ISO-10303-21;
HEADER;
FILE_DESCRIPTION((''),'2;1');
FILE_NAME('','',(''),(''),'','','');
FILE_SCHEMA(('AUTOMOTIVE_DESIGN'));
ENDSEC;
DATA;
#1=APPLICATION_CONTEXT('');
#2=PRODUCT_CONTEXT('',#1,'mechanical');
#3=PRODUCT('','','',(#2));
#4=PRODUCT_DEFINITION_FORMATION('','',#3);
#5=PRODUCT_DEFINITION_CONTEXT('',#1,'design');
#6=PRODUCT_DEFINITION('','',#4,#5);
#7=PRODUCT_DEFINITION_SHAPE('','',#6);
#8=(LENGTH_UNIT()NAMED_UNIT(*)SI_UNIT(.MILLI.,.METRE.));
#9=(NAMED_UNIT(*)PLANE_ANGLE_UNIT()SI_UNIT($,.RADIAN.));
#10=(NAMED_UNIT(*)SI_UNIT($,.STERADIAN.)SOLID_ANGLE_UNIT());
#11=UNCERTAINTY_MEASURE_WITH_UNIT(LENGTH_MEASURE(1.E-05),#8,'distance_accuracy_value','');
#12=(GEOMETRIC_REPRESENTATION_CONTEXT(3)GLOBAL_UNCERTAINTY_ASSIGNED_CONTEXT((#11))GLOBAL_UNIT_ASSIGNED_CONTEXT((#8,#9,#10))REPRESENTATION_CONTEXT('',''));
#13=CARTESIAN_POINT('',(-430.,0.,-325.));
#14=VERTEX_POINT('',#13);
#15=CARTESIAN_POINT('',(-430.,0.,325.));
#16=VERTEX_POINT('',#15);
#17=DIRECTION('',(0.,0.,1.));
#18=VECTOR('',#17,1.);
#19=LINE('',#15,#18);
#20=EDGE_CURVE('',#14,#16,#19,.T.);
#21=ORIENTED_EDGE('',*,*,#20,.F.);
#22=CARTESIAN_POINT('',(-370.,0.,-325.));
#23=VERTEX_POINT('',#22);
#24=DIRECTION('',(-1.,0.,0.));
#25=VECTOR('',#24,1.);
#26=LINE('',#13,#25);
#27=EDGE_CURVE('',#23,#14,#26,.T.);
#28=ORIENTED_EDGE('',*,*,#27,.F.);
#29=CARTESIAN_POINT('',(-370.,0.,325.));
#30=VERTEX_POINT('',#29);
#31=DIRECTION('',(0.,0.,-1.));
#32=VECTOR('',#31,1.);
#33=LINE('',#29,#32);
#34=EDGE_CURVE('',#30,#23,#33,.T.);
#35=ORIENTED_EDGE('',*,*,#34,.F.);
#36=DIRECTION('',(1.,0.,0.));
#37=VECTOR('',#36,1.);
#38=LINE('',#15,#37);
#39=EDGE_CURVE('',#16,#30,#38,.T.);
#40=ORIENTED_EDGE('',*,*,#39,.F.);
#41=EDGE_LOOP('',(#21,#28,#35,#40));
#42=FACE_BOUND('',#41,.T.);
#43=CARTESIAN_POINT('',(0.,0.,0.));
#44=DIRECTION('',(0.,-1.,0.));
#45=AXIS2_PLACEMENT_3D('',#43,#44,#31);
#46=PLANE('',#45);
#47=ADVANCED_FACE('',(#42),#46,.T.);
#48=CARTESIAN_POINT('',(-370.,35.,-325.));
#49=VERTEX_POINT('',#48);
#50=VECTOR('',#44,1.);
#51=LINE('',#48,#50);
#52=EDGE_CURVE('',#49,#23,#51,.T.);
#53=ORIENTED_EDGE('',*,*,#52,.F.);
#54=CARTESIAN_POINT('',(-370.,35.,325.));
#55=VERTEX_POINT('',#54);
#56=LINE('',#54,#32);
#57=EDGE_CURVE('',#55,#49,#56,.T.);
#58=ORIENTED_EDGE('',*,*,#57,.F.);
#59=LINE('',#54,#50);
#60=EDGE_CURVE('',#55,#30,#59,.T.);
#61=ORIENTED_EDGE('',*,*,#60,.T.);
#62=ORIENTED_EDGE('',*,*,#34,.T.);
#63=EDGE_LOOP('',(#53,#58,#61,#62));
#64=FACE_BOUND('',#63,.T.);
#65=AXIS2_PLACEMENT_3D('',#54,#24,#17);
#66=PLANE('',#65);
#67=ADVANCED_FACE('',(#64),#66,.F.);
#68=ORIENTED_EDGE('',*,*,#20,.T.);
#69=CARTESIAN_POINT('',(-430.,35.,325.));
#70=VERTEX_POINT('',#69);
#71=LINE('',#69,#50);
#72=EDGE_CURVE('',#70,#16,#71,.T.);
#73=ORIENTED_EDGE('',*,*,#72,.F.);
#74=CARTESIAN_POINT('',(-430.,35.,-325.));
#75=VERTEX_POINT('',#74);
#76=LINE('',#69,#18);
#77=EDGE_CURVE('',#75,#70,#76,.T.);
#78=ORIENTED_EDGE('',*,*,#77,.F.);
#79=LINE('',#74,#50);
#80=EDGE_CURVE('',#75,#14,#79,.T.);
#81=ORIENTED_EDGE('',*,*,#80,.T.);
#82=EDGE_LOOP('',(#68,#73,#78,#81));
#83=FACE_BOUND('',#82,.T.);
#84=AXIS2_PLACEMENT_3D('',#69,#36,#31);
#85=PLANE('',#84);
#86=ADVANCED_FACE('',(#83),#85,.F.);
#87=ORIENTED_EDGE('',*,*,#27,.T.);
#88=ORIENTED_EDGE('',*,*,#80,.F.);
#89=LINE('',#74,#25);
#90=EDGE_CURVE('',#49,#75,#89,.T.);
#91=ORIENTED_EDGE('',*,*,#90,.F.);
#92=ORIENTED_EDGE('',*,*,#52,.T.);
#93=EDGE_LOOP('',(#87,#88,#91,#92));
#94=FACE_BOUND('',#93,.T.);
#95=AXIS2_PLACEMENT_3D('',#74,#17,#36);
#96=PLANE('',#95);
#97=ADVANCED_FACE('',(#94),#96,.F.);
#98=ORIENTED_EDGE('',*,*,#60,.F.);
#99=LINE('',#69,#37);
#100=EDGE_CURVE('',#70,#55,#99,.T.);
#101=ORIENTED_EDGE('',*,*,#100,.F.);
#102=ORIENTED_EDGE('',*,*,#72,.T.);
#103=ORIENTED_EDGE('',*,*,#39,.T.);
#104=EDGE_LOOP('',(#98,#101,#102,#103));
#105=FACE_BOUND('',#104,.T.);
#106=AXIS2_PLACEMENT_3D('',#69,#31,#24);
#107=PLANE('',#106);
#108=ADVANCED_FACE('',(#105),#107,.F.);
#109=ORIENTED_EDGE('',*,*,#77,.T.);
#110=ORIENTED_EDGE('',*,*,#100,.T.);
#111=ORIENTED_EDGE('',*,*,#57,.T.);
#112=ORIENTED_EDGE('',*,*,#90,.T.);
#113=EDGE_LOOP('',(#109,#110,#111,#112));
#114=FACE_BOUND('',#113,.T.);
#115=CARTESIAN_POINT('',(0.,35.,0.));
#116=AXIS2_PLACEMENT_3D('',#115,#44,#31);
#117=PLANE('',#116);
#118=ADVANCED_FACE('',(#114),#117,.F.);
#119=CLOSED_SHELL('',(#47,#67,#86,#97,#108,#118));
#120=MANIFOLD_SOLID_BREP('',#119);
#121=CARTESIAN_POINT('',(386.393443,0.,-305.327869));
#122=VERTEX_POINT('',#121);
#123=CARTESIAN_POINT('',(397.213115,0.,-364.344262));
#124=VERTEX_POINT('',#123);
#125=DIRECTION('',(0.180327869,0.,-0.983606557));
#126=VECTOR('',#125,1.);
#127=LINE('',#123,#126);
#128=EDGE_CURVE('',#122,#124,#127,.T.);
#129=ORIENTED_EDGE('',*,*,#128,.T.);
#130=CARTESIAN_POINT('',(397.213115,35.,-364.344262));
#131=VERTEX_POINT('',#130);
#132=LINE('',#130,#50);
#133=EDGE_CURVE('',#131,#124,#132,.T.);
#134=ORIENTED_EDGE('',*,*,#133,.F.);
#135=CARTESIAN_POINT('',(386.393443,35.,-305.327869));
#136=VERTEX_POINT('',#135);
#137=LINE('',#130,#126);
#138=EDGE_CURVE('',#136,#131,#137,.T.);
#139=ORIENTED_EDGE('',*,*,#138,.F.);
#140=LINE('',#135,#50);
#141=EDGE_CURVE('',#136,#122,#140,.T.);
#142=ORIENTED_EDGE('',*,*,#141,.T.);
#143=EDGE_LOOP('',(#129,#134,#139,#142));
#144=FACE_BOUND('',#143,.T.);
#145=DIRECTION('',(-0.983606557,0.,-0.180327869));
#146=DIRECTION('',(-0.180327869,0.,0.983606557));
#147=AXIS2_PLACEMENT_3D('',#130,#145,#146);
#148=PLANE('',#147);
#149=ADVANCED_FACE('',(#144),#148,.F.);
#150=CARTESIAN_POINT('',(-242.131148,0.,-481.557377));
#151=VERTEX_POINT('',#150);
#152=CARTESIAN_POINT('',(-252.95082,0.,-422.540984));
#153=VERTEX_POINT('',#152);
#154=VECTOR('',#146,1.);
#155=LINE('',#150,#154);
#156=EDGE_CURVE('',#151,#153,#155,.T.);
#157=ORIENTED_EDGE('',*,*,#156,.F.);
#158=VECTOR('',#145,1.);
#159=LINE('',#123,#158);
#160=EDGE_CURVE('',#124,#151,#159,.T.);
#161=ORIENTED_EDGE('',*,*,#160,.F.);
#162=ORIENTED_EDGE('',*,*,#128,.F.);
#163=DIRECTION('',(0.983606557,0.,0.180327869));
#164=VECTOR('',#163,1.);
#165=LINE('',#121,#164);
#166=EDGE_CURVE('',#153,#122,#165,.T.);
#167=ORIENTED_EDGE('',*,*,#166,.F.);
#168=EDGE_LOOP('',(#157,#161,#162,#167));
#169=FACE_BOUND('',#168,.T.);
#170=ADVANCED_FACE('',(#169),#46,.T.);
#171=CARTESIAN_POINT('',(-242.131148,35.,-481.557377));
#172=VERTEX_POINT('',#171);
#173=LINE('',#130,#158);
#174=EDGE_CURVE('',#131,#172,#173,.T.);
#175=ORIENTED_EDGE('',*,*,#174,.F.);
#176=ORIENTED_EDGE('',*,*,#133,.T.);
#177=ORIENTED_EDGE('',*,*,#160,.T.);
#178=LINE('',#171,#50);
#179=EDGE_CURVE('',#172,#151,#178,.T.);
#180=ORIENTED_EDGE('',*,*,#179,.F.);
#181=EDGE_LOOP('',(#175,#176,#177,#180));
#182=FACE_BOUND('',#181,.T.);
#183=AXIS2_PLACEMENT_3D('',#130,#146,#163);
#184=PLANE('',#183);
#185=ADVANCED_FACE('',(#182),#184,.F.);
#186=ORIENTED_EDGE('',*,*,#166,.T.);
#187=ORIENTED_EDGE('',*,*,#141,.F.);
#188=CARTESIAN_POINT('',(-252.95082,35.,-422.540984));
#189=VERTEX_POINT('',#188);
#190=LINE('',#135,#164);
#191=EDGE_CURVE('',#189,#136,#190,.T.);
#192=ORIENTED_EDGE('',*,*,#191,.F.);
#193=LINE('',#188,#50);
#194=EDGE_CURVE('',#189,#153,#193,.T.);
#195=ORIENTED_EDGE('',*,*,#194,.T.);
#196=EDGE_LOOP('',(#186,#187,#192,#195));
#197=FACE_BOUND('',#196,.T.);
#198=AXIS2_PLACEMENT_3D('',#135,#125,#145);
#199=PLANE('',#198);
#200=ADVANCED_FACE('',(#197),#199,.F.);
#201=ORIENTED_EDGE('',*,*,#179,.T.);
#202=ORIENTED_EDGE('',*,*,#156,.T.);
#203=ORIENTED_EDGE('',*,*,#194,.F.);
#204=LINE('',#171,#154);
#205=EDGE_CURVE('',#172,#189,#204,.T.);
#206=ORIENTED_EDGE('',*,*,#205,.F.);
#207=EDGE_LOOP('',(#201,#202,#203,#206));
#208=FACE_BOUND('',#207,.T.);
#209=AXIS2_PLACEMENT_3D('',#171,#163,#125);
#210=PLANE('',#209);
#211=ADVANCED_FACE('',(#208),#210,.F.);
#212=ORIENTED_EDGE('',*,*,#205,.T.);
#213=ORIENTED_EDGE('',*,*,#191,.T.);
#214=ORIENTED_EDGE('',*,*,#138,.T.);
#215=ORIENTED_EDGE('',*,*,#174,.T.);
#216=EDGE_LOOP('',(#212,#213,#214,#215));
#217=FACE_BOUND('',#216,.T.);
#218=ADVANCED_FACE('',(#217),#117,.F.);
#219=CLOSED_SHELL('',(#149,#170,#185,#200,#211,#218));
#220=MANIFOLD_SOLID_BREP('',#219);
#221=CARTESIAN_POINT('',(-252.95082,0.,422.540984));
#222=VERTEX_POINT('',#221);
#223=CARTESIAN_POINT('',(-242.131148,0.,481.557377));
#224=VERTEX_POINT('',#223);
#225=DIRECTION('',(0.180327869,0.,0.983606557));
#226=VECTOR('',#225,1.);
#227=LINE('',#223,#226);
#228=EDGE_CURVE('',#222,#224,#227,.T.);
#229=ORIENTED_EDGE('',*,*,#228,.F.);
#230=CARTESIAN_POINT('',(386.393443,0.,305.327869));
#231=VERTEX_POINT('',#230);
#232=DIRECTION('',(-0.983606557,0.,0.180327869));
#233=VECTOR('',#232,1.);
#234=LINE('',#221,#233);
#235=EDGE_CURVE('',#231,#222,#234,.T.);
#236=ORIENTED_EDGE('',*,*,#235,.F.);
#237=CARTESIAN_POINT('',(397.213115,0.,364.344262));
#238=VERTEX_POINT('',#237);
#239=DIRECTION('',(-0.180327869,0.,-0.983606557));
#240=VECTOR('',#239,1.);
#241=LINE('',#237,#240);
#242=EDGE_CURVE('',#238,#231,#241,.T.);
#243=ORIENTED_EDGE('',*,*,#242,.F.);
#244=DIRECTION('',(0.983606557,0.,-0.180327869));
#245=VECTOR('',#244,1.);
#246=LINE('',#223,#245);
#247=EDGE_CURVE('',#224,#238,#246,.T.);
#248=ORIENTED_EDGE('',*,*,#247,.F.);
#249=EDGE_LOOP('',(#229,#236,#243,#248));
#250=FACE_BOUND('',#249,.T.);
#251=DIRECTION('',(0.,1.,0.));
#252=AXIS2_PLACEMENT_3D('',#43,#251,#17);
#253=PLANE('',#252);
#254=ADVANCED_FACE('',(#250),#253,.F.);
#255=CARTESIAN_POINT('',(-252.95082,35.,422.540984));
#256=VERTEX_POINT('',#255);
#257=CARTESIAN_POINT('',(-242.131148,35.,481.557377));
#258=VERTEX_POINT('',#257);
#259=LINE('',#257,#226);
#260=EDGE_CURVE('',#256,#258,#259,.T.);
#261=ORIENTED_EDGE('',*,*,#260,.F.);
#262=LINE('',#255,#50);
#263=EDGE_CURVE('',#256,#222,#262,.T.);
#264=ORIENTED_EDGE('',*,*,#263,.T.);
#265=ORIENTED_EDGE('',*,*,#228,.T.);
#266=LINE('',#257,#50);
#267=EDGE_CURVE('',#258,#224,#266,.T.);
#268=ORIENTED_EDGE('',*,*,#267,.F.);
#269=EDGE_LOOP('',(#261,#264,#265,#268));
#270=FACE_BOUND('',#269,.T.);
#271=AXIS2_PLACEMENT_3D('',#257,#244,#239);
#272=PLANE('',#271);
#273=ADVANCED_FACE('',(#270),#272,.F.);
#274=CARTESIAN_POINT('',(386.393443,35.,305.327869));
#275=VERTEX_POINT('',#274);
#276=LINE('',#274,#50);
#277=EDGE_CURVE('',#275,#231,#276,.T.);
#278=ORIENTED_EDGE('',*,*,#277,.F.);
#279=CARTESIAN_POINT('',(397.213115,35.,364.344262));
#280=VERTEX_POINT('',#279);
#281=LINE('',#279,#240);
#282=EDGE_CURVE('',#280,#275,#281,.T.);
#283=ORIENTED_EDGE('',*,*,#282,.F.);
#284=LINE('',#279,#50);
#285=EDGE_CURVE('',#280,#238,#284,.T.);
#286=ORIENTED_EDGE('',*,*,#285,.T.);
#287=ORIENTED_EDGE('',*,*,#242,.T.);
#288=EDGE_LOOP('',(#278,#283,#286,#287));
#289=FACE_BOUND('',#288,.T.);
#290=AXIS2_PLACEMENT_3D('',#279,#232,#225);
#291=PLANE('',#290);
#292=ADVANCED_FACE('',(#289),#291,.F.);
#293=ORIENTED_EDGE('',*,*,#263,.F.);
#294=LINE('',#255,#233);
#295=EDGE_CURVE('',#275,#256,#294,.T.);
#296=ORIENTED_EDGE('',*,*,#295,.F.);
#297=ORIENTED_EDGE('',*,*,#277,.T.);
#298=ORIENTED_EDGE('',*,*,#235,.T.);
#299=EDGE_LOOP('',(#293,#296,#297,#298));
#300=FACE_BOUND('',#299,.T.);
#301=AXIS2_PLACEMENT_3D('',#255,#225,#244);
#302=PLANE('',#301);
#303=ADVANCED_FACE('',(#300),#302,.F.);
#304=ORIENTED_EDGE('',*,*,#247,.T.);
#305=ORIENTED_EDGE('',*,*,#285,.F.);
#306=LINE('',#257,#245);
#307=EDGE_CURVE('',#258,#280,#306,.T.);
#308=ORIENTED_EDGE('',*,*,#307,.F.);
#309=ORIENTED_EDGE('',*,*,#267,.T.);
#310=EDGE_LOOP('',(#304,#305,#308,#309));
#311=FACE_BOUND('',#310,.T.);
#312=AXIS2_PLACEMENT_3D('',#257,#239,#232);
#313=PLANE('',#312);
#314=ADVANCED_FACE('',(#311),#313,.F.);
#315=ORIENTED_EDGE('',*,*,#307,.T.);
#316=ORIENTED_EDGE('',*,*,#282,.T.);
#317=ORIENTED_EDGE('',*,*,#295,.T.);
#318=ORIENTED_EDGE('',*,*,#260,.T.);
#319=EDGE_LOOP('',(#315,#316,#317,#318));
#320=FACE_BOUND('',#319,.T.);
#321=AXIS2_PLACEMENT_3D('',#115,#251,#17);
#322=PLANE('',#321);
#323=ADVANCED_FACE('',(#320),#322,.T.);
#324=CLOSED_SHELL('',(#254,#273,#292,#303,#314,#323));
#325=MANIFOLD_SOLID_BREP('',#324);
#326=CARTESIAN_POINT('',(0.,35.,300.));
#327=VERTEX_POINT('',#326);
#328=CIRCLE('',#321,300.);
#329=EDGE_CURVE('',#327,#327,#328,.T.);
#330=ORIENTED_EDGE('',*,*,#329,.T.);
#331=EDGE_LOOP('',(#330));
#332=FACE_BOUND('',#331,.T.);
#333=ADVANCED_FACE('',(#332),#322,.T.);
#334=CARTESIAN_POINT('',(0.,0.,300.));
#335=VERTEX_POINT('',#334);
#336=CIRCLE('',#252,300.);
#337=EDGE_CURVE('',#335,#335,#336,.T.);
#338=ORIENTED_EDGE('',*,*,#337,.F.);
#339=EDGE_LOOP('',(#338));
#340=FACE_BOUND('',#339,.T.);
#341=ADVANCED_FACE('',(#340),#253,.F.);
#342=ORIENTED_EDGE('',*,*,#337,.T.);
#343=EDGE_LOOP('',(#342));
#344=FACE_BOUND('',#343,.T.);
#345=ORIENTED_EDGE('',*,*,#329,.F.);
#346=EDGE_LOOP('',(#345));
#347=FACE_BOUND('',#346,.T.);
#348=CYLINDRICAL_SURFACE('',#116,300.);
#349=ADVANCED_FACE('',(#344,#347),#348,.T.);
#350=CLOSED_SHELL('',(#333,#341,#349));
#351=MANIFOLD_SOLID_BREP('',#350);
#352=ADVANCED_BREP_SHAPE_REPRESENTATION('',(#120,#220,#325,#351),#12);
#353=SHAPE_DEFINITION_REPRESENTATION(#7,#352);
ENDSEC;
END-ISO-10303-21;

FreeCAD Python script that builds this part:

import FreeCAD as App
import Part
import Sketcher

V = App.Vector
Q = App.Units.Quantity

doc = App.newDocument("Part")
params = doc.addObject("Spreadsheet::Sheet", "Params")
for row, (alias, value) in enumerate([
    ("sketch1_diameter", "600 mm"),
    ("pad1_length", "35 mm"),
    ("sketch2_length", "650 mm"),
    ("sketch2_length2", "60 mm"),
    ("pad2_length", "35 mm"),
    ("sketch3_width", "60 mm"),
    ("sketch3_height", "650 mm"),
    ("pad3_length", "35 mm"),
    ("sketch4_length", "60 mm"),
    ("sketch4_length2", "650 mm"),
    ("pad4_length", "35 mm"),
], start=1):
    params.set(f"A{row}", alias)
    params.set(f"B{row}", "=" + value)
    params.setAlias(f"B{row}", alias)

body = doc.addObject("PartDesign::Body", "Body")

# Sketch on XZ plane
sketch1 = body.newObject("Sketcher::SketchObject", "Sketch")
sketch1.AttachmentSupport = (doc.getObject("XZ_Plane"), [""])
sketch1.MapMode = "FlatFace"
sketch1.addGeometry(Part.Circle(V(0, 0, 0), V(0, 0, 1), 300), False)
sketch1.addConstraint(Sketcher.Constraint("Coincident", 0, 3, -1, 1))
sketch1.addConstraint(Sketcher.Constraint("Diameter", 0, Q("600 mm")))
sketch1.setExpression("Constraints[1]", "Params.sketch1_diameter")
pad1 = body.newObject("PartDesign::Pad", "Pad")
pad1.Profile = sketch1
pad1.setExpression("Length", "Params.pad1_length")
pad1.Reversed = True
body2 = doc.addObject("PartDesign::Body", "Body001")

# Sketch on XZ plane
sketch2 = body2.newObject("Sketcher::SketchObject", "Sketch001")
sketch2.AttachmentSupport = (doc.getObject("XZ_Plane001"), [""])
sketch2.MapMode = "FlatFace"
sketch2.addGeometry(Part.LineSegment(V(-252.95082, -422.540984, 0), V(386.393443, -305.327869, 0)), False)
sketch2.addGeometry(Part.LineSegment(V(386.393443, -305.327869, 0), V(397.213115, -364.344262, 0)), False)
sketch2.addGeometry(Part.LineSegment(V(397.213115, -364.344262, 0), V(-242.131148, -481.557377, 0)), False)
sketch2.addGeometry(Part.LineSegment(V(-242.131148, -481.557377, 0), V(-252.95082, -422.540984, 0)), False)
sketch2.addConstraint(Sketcher.Constraint("Coincident", 0, 2, 1, 1))
sketch2.addConstraint(Sketcher.Constraint("Coincident", 1, 2, 2, 1))
sketch2.addConstraint(Sketcher.Constraint("Coincident", 2, 2, 3, 1))
sketch2.addConstraint(Sketcher.Constraint("Coincident", 3, 2, 0, 1))
sketch2.addConstraint(Sketcher.Constraint("Perpendicular", 0, 1))
sketch2.addConstraint(Sketcher.Constraint("Perpendicular", 1, 2))
sketch2.addConstraint(Sketcher.Constraint("Perpendicular", 2, 3))
sketch2.addConstraint(Sketcher.Constraint("Distance", 0, Q("650 mm")))
sketch2.addConstraint(Sketcher.Constraint("Distance", 1, Q("60 mm")))
sketch2.addConstraint(Sketcher.Constraint("DistanceY", 0, 2, -1, 1, Q("305.327869 mm")))
sketch2.addConstraint(Sketcher.Constraint("DistanceX", 3, 2, -1, 1, Q("252.95082 mm")))
sketch2.addConstraint(Sketcher.Constraint("DistanceX", 2, 2, 0, 2, Q("628.52459 mm")))
sketch2.setExpression("Constraints[7]", "Params.sketch2_length")
sketch2.setExpression("Constraints[8]", "Params.sketch2_length2")
pad2 = body2.newObject("PartDesign::Pad", "Pad001")
pad2.Profile = sketch2
pad2.setExpression("Length", "Params.pad2_length")
pad2.Reversed = True
body3 = doc.addObject("PartDesign::Body", "Body002")

# Sketch on XZ plane
sketch3 = body3.newObject("Sketcher::SketchObject", "Sketch002")
sketch3.AttachmentSupport = (doc.getObject("XZ_Plane002"), [""])
sketch3.MapMode = "FlatFace"
sketch3.addGeometry(Part.LineSegment(V(-430, -325, 0), V(-430, 325, 0)), False)
sketch3.addGeometry(Part.LineSegment(V(-430, 325, 0), V(-370, 325, 0)), False)
sketch3.addGeometry(Part.LineSegment(V(-370, 325, 0), V(-370, -325, 0)), False)
sketch3.addGeometry(Part.LineSegment(V(-370, -325, 0), V(-430, -325, 0)), False)
sketch3.addConstraint(Sketcher.Constraint("Coincident", 0, 2, 1, 1))
sketch3.addConstraint(Sketcher.Constraint("Coincident", 1, 2, 2, 1))
sketch3.addConstraint(Sketcher.Constraint("Coincident", 2, 2, 3, 1))
sketch3.addConstraint(Sketcher.Constraint("Coincident", 3, 2, 0, 1))
sketch3.addConstraint(Sketcher.Constraint("Vertical", 0))
sketch3.addConstraint(Sketcher.Constraint("Horizontal", 1))
sketch3.addConstraint(Sketcher.Constraint("Vertical", 2))
sketch3.addConstraint(Sketcher.Constraint("Horizontal", 3))
sketch3.addConstraint(Sketcher.Constraint("DistanceX", 1, 1, 1, 2, Q("60 mm")))
sketch3.addConstraint(Sketcher.Constraint("DistanceY", 0, 1, 0, 2, Q("650 mm")))
sketch3.addConstraint(Sketcher.Constraint("DistanceX", 0, 2, -1, 1, Q("430 mm")))
sketch3.addConstraint(Sketcher.Constraint("DistanceY", -1, 1, 0, 2, Q("325 mm")))
sketch3.setExpression("Constraints[8]", "Params.sketch3_width")
sketch3.setExpression("Constraints[9]", "Params.sketch3_height")
pad3 = body3.newObject("PartDesign::Pad", "Pad002")
pad3.Profile = sketch3
pad3.setExpression("Length", "Params.pad3_length")
pad3.Reversed = True
body4 = doc.addObject("PartDesign::Body", "Body003")

# Sketch on XZ plane
sketch4 = body4.newObject("Sketcher::SketchObject", "Sketch003")
sketch4.AttachmentSupport = (doc.getObject("XZ_Plane003"), [""])
sketch4.MapMode = "FlatFace"
sketch4.addGeometry(Part.LineSegment(V(-252.95082, 422.540984, 0), V(-242.131148, 481.557377, 0)), False)
sketch4.addGeometry(Part.LineSegment(V(-242.131148, 481.557377, 0), V(397.213115, 364.344262, 0)), False)
sketch4.addGeometry(Part.LineSegment(V(397.213115, 364.344262, 0), V(386.393443, 305.327869, 0)), False)
sketch4.addGeometry(Part.LineSegment(V(386.393443, 305.327869, 0), V(-252.95082, 422.540984, 0)), False)
sketch4.addConstraint(Sketcher.Constraint("Coincident", 0, 2, 1, 1))
sketch4.addConstraint(Sketcher.Constraint("Coincident", 1, 2, 2, 1))
sketch4.addConstraint(Sketcher.Constraint("Coincident", 2, 2, 3, 1))
sketch4.addConstraint(Sketcher.Constraint("Coincident", 3, 2, 0, 1))
sketch4.addConstraint(Sketcher.Constraint("Perpendicular", 0, 1))
sketch4.addConstraint(Sketcher.Constraint("Perpendicular", 1, 2))
sketch4.addConstraint(Sketcher.Constraint("Perpendicular", 2, 3))
sketch4.addConstraint(Sketcher.Constraint("Distance", 0, Q("60 mm")))
sketch4.addConstraint(Sketcher.Constraint("Distance", 1, Q("650 mm")))
sketch4.addConstraint(Sketcher.Constraint("DistanceY", -1, 1, 2, 2, Q("305.327869 mm")))
sketch4.addConstraint(Sketcher.Constraint("DistanceX", 3, 2, -1, 1, Q("252.95082 mm")))
sketch4.addConstraint(Sketcher.Constraint("DistanceX", 0, 2, 2, 2, Q("628.52459 mm")))
sketch4.setExpression("Constraints[7]", "Params.sketch4_length")
sketch4.setExpression("Constraints[8]", "Params.sketch4_length2")
pad4 = body4.newObject("PartDesign::Pad", "Pad003")
pad4.Profile = sketch4
pad4.setExpression("Length", "Params.pad4_length")
pad4.Reversed = True

doc.recompute()
